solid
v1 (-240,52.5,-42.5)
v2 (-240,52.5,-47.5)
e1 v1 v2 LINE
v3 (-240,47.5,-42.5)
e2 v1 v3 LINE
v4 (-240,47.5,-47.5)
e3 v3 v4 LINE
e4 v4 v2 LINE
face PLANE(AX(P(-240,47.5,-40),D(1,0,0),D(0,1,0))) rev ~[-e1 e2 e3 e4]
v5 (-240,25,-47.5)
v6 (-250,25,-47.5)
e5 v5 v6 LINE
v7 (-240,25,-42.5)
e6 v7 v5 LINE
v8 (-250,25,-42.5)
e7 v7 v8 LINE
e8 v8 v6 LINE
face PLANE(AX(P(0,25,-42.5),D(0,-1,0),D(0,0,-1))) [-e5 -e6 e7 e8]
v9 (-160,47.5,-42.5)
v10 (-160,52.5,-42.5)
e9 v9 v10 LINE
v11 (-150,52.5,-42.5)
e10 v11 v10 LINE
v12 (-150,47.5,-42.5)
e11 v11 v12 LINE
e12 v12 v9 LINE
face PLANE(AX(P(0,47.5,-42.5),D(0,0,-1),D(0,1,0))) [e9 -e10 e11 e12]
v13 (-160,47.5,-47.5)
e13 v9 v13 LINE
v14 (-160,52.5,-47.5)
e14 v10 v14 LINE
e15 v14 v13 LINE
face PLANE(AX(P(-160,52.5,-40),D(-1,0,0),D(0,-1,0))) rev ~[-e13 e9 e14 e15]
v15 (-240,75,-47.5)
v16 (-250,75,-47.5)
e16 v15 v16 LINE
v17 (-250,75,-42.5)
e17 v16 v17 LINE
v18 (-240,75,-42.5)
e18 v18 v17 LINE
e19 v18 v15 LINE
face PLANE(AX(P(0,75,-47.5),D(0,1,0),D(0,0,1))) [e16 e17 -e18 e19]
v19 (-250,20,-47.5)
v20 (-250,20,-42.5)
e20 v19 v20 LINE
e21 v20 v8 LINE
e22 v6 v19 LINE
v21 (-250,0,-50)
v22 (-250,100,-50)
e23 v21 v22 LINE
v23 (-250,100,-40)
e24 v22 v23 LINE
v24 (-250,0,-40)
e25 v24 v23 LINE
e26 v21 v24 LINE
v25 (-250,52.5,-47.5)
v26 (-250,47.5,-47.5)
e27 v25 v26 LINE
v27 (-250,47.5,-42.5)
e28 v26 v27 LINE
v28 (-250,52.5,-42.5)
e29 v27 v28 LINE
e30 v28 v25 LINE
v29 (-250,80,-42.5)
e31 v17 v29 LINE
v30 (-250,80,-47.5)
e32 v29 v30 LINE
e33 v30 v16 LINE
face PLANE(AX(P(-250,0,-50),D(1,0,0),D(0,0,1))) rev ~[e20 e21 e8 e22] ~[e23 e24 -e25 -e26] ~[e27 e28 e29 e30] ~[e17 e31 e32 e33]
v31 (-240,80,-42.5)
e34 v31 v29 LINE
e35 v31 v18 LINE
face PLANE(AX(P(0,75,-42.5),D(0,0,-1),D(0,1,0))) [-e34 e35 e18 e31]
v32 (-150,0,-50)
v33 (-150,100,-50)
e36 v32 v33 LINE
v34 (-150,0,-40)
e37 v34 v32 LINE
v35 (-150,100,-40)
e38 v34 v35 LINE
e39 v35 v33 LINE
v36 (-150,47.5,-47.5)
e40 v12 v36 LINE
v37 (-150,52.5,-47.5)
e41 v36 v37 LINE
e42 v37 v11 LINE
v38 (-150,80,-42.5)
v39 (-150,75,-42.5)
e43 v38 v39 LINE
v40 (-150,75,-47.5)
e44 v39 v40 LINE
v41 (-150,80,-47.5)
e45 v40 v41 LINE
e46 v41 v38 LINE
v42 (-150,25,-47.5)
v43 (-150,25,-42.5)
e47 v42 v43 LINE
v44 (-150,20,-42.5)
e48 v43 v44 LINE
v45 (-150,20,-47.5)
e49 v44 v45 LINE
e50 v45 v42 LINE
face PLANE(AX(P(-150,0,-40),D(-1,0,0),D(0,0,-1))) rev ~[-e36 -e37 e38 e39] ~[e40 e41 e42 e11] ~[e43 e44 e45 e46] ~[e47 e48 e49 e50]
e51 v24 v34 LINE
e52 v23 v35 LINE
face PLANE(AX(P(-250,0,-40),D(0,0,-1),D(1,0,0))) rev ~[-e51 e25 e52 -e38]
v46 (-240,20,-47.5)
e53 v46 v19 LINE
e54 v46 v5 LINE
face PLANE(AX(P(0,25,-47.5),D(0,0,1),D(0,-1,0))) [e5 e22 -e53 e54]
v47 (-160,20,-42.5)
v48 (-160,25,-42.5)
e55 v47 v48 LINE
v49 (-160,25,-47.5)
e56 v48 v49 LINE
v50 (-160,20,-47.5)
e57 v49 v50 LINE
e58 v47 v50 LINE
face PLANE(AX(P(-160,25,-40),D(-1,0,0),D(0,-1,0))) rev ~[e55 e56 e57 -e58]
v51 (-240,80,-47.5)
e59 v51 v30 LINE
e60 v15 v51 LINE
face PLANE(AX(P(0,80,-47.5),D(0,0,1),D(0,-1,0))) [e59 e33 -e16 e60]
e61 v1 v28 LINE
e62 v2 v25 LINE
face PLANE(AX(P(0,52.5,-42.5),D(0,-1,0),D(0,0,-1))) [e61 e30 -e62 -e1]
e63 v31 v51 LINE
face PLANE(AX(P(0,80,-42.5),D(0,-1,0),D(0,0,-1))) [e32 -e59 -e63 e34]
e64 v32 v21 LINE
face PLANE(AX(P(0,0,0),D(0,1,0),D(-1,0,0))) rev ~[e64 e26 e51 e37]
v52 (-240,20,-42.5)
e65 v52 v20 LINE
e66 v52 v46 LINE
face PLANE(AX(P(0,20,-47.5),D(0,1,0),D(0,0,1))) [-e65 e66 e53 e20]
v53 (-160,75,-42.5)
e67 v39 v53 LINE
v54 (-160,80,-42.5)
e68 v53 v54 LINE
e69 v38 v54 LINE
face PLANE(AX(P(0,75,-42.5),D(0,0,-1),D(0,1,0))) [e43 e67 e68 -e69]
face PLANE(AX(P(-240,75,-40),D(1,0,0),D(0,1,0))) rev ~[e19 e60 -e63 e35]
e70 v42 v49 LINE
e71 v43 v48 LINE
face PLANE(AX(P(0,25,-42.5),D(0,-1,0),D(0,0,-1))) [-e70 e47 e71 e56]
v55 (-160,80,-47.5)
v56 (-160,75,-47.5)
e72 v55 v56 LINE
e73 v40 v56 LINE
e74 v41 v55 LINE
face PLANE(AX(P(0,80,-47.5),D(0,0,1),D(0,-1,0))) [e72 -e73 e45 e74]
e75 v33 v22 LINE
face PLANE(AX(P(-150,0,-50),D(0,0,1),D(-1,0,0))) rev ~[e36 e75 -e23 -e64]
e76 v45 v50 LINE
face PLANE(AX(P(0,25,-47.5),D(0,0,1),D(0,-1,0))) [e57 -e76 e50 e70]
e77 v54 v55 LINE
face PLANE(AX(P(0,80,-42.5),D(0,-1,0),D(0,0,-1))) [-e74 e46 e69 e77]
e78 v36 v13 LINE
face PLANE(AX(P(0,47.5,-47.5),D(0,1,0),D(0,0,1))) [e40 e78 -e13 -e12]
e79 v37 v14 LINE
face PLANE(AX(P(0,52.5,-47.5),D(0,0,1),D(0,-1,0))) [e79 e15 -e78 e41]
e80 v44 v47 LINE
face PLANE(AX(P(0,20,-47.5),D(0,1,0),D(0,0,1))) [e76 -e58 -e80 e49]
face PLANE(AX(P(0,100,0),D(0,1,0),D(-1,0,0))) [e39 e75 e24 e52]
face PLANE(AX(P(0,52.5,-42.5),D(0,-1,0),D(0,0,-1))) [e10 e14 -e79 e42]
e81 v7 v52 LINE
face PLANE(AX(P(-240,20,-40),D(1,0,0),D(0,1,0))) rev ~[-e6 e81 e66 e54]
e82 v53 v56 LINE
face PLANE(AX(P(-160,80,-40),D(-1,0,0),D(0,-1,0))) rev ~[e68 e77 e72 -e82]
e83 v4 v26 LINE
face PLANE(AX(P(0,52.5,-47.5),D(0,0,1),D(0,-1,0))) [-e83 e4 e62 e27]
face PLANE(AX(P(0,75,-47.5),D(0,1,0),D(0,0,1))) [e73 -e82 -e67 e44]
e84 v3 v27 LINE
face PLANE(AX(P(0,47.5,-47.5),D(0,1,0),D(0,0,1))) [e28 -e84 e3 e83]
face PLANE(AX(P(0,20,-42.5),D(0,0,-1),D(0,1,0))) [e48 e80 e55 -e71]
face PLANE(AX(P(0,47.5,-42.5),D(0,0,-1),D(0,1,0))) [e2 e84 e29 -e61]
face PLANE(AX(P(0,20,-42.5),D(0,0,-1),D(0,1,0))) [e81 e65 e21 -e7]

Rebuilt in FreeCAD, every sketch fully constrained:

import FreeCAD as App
import Part
import Sketcher
from FreeCAD import Vector

doc = App.newDocument("Part")
body = doc.addObject("PartDesign::Body", "Body")
body.AllowCompound = True

sketch1 = body.newObject("Sketcher::SketchObject", "Sketch")
sketch1.AttachmentSupport = (doc.getObject("XZ_Plane"), [""])
sketch1.MapMode = "FlatFace"
sketch1.addGeometry([
    Part.LineSegment(Vector(-300, -50, 0), Vector(-400, -50, 0)),
    Part.LineSegment(Vector(-400, -50, 0), Vector(-400, 50, 0)),
    Part.LineSegment(Vector(-400, 50, 0), Vector(-390, 50, 0)),
    Part.LineSegment(Vector(-390, 50, 0), Vector(-390, -40, 0)),
    Part.LineSegment(Vector(-390, -40, 0), Vector(-300, -40, 0)),
    Part.LineSegment(Vector(-300, -40, 0), Vector(-300, -50, 0)),
    Part.LineSegment(Vector(-150, -50, 0), Vector(-250, -50, 0)),
    Part.LineSegment(Vector(-250, -50, 0), Vector(-250, -40, 0)),
    Part.LineSegment(Vector(-250, -40, 0), Vector(-150, -40, 0)),
    Part.LineSegment(Vector(-150, -40, 0), Vector(-150, -50, 0)),
    Part.LineSegment(Vector(0, -50, 0), Vector(-100, -50, 0)),
    Part.LineSegment(Vector(-100, -50, 0), Vector(-100, -40, 0)),
    Part.LineSegment(Vector(-100, -40, 0), Vector(-10, -40, 0)),
    Part.LineSegment(Vector(-10, -40, 0), Vector(-10, 50, 0)),
    Part.LineSegment(Vector(-10, 50, 0), Vector(0, 50, 0)),
    Part.LineSegment(Vector(0, 50, 0), Vector(0, -50, 0)),
], False)
sketch1.addConstraint([
    Sketcher.Constraint("Coincident", 0, 2, 1, 1),
    Sketcher.Constraint("Coincident", 1, 2, 2, 1),
    Sketcher.Constraint("Coincident", 2, 2, 3, 1),
    Sketcher.Constraint("Coincident", 3, 2, 4, 1),
    Sketcher.Constraint("Coincident", 4, 2, 5, 1),
    Sketcher.Constraint("Coincident", 5, 2, 0, 1),
    Sketcher.Constraint("Coincident", 6, 2, 7, 1),
    Sketcher.Constraint("Coincident", 7, 2, 8, 1),
    Sketcher.Constraint("Coincident", 8, 2, 9, 1),
    Sketcher.Constraint("Coincident", 9, 2, 6, 1),
    Sketcher.Constraint("Coincident", 10, 2, 11, 1),
    Sketcher.Constraint("Coincident", 11, 2, 12, 1),
    Sketcher.Constraint("Coincident", 12, 2, 13, 1),
    Sketcher.Constraint("Coincident", 13, 2, 14, 1),
    Sketcher.Constraint("Coincident", 14, 2, 15, 1),
    Sketcher.Constraint("Coincident", 15, 2, 10, 1),
    Sketcher.Constraint("Horizontal", 0),
    Sketcher.Constraint("Vertical", 1),
    Sketcher.Constraint("Horizontal", 2),
    Sketcher.Constraint("Vertical", 3),
    Sketcher.Constraint("Horizontal", 4),
    Sketcher.Constraint("Vertical", 5),
    Sketcher.Constraint("Horizontal", 6),
    Sketcher.Constraint("Vertical", 7),
    Sketcher.Constraint("Horizontal", 8),
    Sketcher.Constraint("Vertical", 9),
    Sketcher.Constraint("Horizontal", 10),
    Sketcher.Constraint("Vertical", 11),
    Sketcher.Constraint("Horizontal", 12),
    Sketcher.Constraint("Vertical", 13),
    Sketcher.Constraint("Horizontal", 14),
    Sketcher.Constraint("Vertical", 15),
    Sketcher.Constraint("Symmetric", 14, 2, 15, 2, -1, 1),
    Sketcher.Constraint("Horizontal", 5, 2, 6, 2),
    Sketcher.Constraint("Horizontal", 4, 2, 7, 2),
    Sketcher.Constraint("Horizontal", 9, 2, 10, 2),
    Sketcher.Constraint("Horizontal", 8, 2, 11, 2),
    Sketcher.Constraint("Horizontal", 2, 2, 13, 2),
    Sketcher.Constraint("Equal", 0, 6),
    Sketcher.Constraint("Equal", 8, 10),
    Sketcher.Constraint("Equal", 4, 12),
    Sketcher.Constraint("Equal", 10, 1),
    Sketcher.Constraint("Equal", 12, 3),
    Sketcher.Constraint("DistanceX", 0, 2, 0, 1, 100.0),
    Sketcher.Constraint("DistanceX", 2, 1, 2, 2, 10.0),
    Sketcher.Constraint("DistanceX", 0, 2, -1, 1, 400.0),
    Sketcher.Constraint("DistanceX", 5, 2, 6, 2, 50.0),
])
pad1 = body.newObject("PartDesign::Pad", "Pad")
pad1.Profile = sketch1
pad1.Length = 100
pad1.Reversed = True

sketch2 = body.newObject("Sketcher::SketchObject", "Sketch001")
sketch2.AttachmentSupport = (doc.getObject("YZ_Plane"), [""])
sketch2.MapMode = "FlatFace"
sketch2.addGeometry([
    Part.LineSegment(Vector(80, -48, 0), Vector(80, -42, 0)),
    Part.LineSegment(Vector(80, -42, 0), Vector(75, -42, 0)),
    Part.LineSegment(Vector(75, -42, 0), Vector(75, -48, 0)),
    Part.LineSegment(Vector(75, -48, 0), Vector(80, -48, 0)),
    Part.LineSegment(Vector(20, -42, 0), Vector(20, -48, 0)),
    Part.LineSegment(Vector(20, -48, 0), Vector(25, -48, 0)),
    Part.LineSegment(Vector(25, -48, 0), Vector(25, -42, 0)),
    Part.LineSegment(Vector(25, -42, 0), Vector(20, -42, 0)),
    Part.LineSegment(Vector(52, -48, 0), Vector(52, -42, 0)),
    Part.LineSegment(Vector(52, -42, 0), Vector(48, -42, 0)),
    Part.LineSegment(Vector(48, -42, 0), Vector(48, -48, 0)),
    Part.LineSegment(Vector(48, -48, 0), Vector(52, -48, 0)),
], False)
sketch2.addConstraint([
    Sketcher.Constraint("Coincident", 0, 2, 1, 1),
    Sketcher.Constraint("Coincident", 1, 2, 2, 1),
    Sketcher.Constraint("Coincident", 2, 2, 3, 1),
    Sketcher.Constraint("Coincident", 3, 2, 0, 1),
    Sketcher.Constraint("Coincident", 4, 2, 5, 1),
    Sketcher.Constraint("Coincident", 5, 2, 6, 1),
    Sketcher.Constraint("Coincident", 6, 2, 7, 1),
    Sketcher.Constraint("Coincident", 7, 2, 4, 1),
    Sketcher.Constraint("Coincident", 8, 2, 9, 1),
    Sketcher.Constraint("Coincident", 9, 2, 10, 1),
    Sketcher.Constraint("Coincident", 10, 2, 11, 1),
    Sketcher.Constraint("Coincident", 11, 2, 8, 1),
    Sketcher.Constraint("Vertical", 0),
    Sketcher.Constraint("Horizontal", 1),
    Sketcher.Constraint("Vertical", 2),
    Sketcher.Constraint("Horizontal", 3),
    Sketcher.Constraint("Vertical", 4),
    Sketcher.Constraint("Horizontal", 5),
    Sketcher.Constraint("Vertical", 6),
    Sketcher.Constraint("Horizontal", 7),
    Sketcher.Constraint("Vertical", 8),
    Sketcher.Constraint("Horizontal", 9),
    Sketcher.Constraint("Vertical", 10),
    Sketcher.Constraint("Horizontal", 11),
    Sketcher.Constraint("Horizontal", 3, 2, 4, 2),
    Sketcher.Constraint("Horizontal", 1, 2, 6, 2),
    Sketcher.Constraint("Horizontal", 7, 2, 8, 2),
    Sketcher.Constraint("Horizontal", 5, 2, 10, 2),
    Sketcher.Constraint("Equal", 3, 5),
    Sketcher.Constraint("Equal", 7, 9),
    Sketcher.Constraint("Equal", 11, 0),
    Sketcher.Constraint("DistanceX", 1, 2, 1, 1, 5.0),
    Sketcher.Constraint("DistanceX", -1, 1, 4, 2, 20.0),
    Sketcher.Constraint("DistanceX", 8, 2, 1, 2, 22.5),
    Sketcher.Constraint("DistanceX", 6, 2, 9, 2, 22.5),
    Sketcher.Constraint("DistanceY", 0, 2, -1, 1, 42.5),
])
pocket1 = body.newObject("PartDesign::Pocket", "Pocket")
pocket1.Profile = sketch2
pocket1.Length = 320

sketch3 = body.newObject("Sketcher::SketchObject", "Sketch002")
sketch3.AttachmentSupport = (doc.getObject("YZ_Plane"), [""])
sketch3.MapMode = "FlatFace"
sketch3.addGeometry([
    Part.LineSegment(Vector(75, -42, 0), Vector(75, -48, 0)),
    Part.LineSegment(Vector(75, -48, 0), Vector(80, -48, 0)),
    Part.LineSegment(Vector(80, -48, 0), Vector(80, -42, 0)),
    Part.LineSegment(Vector(80, -42, 0), Vector(75, -42, 0)),
    Part.LineSegment(Vector(48, -42, 0), Vector(48, -48, 0)),
    Part.LineSegment(Vector(48, -48, 0), Vector(52, -48, 0)),
    Part.LineSegment(Vector(52, -48, 0), Vector(52, -42, 0)),
    Part.LineSegment(Vector(52, -42, 0), Vector(48, -42, 0)),
    Part.LineSegment(Vector(25, -48, 0), Vector(25, -42, 0)),
    Part.LineSegment(Vector(25, -42, 0), Vector(20, -42, 0)),
    Part.LineSegment(Vector(20, -42, 0), Vector(20, -48, 0)),
    Part.LineSegment(Vector(20, -48, 0), Vector(25, -48, 0)),
], False)
sketch3.addConstraint([
    Sketcher.Constraint("Coincident", 0, 2, 1, 1),
    Sketcher.Constraint("Coincident", 1, 2, 2, 1),
    Sketcher.Constraint("Coincident", 2, 2, 3, 1),
    Sketcher.Constraint("Coincident", 3, 2, 0, 1),
    Sketcher.Constraint("Coincident", 4, 2, 5, 1),
    Sketcher.Constraint("Coincident", 5, 2, 6, 1),
    Sketcher.Constraint("Coincident", 6, 2, 7, 1),
    Sketcher.Constraint("Coincident", 7, 2, 4, 1),
    Sketcher.Constraint("Coincident", 8, 2, 9, 1),
    Sketcher.Constraint("Coincident", 9, 2, 10, 1),
    Sketcher.Constraint("Coincident", 10, 2, 11, 1),
    Sketcher.Constraint("Coincident", 11, 2, 8, 1),
    Sketcher.Constraint("Vertical", 0),
    Sketcher.Constraint("Horizontal", 1),
    Sketcher.Constraint("Vertical", 2),
    Sketcher.Constraint("Horizontal", 3),
    Sketcher.Constraint("Vertical", 4),
    Sketcher.Constraint("Horizontal", 5),
    Sketcher.Constraint("Vertical", 6),
    Sketcher.Constraint("Horizontal", 7),
    Sketcher.Constraint("Vertical", 8),
    Sketcher.Constraint("Horizontal", 9),
    Sketcher.Constraint("Vertical", 10),
    Sketcher.Constraint("Horizontal", 11),
    Sketcher.Constraint("Horizontal", 1, 2, 4, 2),
    Sketcher.Constraint("Horizontal", 3, 2, 6, 2),
    Sketcher.Constraint("Horizontal", 7, 2, 8, 2),
    Sketcher.Constraint("Horizontal", 5, 2, 10, 2),
    Sketcher.Constraint("Equal", 3, 5),
    Sketcher.Constraint("Equal", 7, 9),
    Sketcher.Constraint("Equal", 11, 0),
    Sketcher.Constraint("DistanceX", 1, 1, 1, 2, 5.0),
    Sketcher.Constraint("DistanceX", -1, 1, 0, 2, 75.0),
    Sketcher.Constraint("DistanceX", -1, 1, 8, 2, 25.0),
    Sketcher.Constraint("DistanceY", 0, 2, -1, 1, 47.5),
    Sketcher.Constraint("DistanceX", -1, 1, 4, 2, 47.5),
])
pad2 = body.newObject("PartDesign::Pad", "Pad001")
pad2.Profile = sketch3
pad2.Length = 80
pad2.Reversed = True

sketch4 = body.newObject("Sketcher::SketchObject", "Sketch003")
sketch4.AttachmentSupport = (doc.getObject("XY_Plane"), [""])
sketch4.MapMode = "FlatFace"
sketch4.AttachmentOffset = App.Placement(Vector(0, 0, -40), App.Rotation())
sketch4.addGeometry([
    Part.LineSegment(Vector(-310, 80, 0), Vector(-320, 80, 0)),
    Part.LineSegment(Vector(-320, 80, 0), Vector(-320, 20, 0)),
    Part.LineSegment(Vector(-320, 20, 0), Vector(-310, 20, 0)),
    Part.LineSegment(Vector(-310, 20, 0), Vector(-310, 80, 0)),
    Part.LineSegment(Vector(-240, 80, 0), Vector(-240, 75, 0)),
    Part.LineSegment(Vector(-240, 75, 0), Vector(-160, 75, 0)),
    Part.LineSegment(Vector(-160, 75, 0), Vector(-160, 80, 0)),
    Part.LineSegment(Vector(-160, 80, 0), Vector(-240, 80, 0)),
    Part.LineSegment(Vector(-160, 52, 0), Vector(-240, 52, 0)),
    Part.LineSegment(Vector(-240, 52, 0), Vector(-240, 48, 0)),
    Part.LineSegment(Vector(-240, 48, 0), Vector(-160, 48, 0)),
    Part.LineSegment(Vector(-160, 48, 0), Vector(-160, 52, 0)),
    Part.LineSegment(Vector(-160, 25, 0), Vector(-240, 25, 0)),
    Part.LineSegment(Vector(-240, 25, 0), Vector(-240, 20, 0)),
    Part.LineSegment(Vector(-240, 20, 0), Vector(-160, 20, 0)),
    Part.LineSegment(Vector(-160, 20, 0), Vector(-160, 25, 0)),
    Part.LineSegment(Vector(-90, 80, 0), Vector(-90, 20, 0)),
    Part.LineSegment(Vector(-90, 20, 0), Vector(-80, 20, 0)),
    Part.LineSegment(Vector(-80, 20, 0), Vector(-80, 80, 0)),
    Part.LineSegment(Vector(-80, 80, 0), Vector(-90, 80, 0)),
], False)
sketch4.addConstraint([
    Sketcher.Constraint("Coincident", 0, 2, 1, 1),
    Sketcher.Constraint("Coincident", 1, 2, 2, 1),
    Sketcher.Constraint("Coincident", 2, 2, 3, 1),
    Sketcher.Constraint("Coincident", 3, 2, 0, 1),
    Sketcher.Constraint("Coincident", 4, 2, 5, 1),
    Sketcher.Constraint("Coincident", 5, 2, 6, 1),
    Sketcher.Constraint("Coincident", 6, 2, 7, 1),
    Sketcher.Constraint("Coincident", 7, 2, 4, 1),
    Sketcher.Constraint("Coincident", 8, 2, 9, 1),
    Sketcher.Constraint("Coincident", 9, 2, 10, 1),
    Sketcher.Constraint("Coincident", 10, 2, 11, 1),
    Sketcher.Constraint("Coincident", 11, 2, 8, 1),
    Sketcher.Constraint("Coincident", 12, 2, 13, 1),
    Sketcher.Constraint("Coincident", 13, 2, 14, 1),
    Sketcher.Constraint("Coincident", 14, 2, 15, 1),
    Sketcher.Constraint("Coincident", 15, 2, 12, 1),
    Sketcher.Constraint("Coincident", 16, 2, 17, 1),
    Sketcher.Constraint("Coincident", 17, 2, 18, 1),
    Sketcher.Constraint("Coincident", 18, 2, 19, 1),
    Sketcher.Constraint("Coincident", 19, 2, 16, 1),
    Sketcher.Constraint("Horizontal", 0),
    Sketcher.Constraint("Vertical", 1),
    Sketcher.Constraint("Horizontal", 2),
    Sketcher.Constraint("Vertical", 3),
    Sketcher.Constraint("Vertical", 4),
    Sketcher.Constraint("Horizontal", 5),
    Sketcher.Constraint("Vertical", 6),
    Sketcher.Constraint("Horizontal", 7),
    Sketcher.Constraint("Horizontal", 8),
    Sketcher.Constraint("Vertical", 9),
    Sketcher.Constraint("Horizontal", 10),
    Sketcher.Constraint("Vertical", 11),
    Sketcher.Constraint("Horizontal", 12),
    Sketcher.Constraint("Vertical", 13),
    Sketcher.Constraint("Horizontal", 14),
    Sketcher.Constraint("Vertical", 15),
    Sketcher.Constraint("Vertical", 16),
    Sketcher.Constraint("Horizontal", 17),
    Sketcher.Constraint("Vertical", 18),
    Sketcher.Constraint("Horizontal", 19),
    Sketcher.Constraint("Horizontal", 3, 2, 6, 2),
    Sketcher.Constraint("Horizontal", 2, 2, 13, 2),
    Sketcher.Constraint("Horizontal", 14, 2, 16, 2),
    Sketcher.Constraint("Horizontal", 7, 2, 18, 2),
    Sketcher.Constraint("Vertical", 7, 2, 8, 2),
    Sketcher.Constraint("Vertical", 6, 2, 10, 2),
    Sketcher.Constraint("Vertical", 9, 2, 12, 2),
    Sketcher.Constraint("Vertical", 11, 2, 14, 2),
    Sketcher.Constraint("Equal", 2, 17),
    Sketcher.Constraint("Equal", 6, 9),
    Sketcher.Constraint("Equal", 11, 13),
    Sketcher.Constraint("DistanceX", 0, 2, 0, 1, 10.0),
    Sketcher.Constraint("DistanceX", 5, 1, 5, 2, 80.0),
    Sketcher.Constraint("DistanceY", 1, 2, 1, 1, 60.0),
    Sketcher.Constraint("DistanceY", 4, 2, 4, 1, 5.0),
    Sketcher.Constraint("DistanceX", 0, 2, -1, 1, 320.0),
    Sketcher.Constraint("DistanceY", -1, 1, 0, 2, 80.0),
    Sketcher.Constraint("DistanceX", 4, 2, -1, 1, 240.0),
    Sketcher.Constraint("DistanceX", 16, 2, -1, 1, 90.0),
    Sketcher.Constraint("DistanceY", -1, 1, 8, 2, 52.5),
])
pad3 = body.newObject("PartDesign::Pad", "Pad002")
pad3.Profile = sketch4
pad3.Length = 10
pad3.Reversed = True

sketch5 = body.newObject("Sketcher::SketchObject", "Sketch004")
sketch5.AttachmentSupport = (doc.getObject("XZ_Plane"), [""])
sketch5.MapMode = "FlatFace"
sketch5.AttachmentOffset = App.Placement(Vector(0, 0, -100), App.Rotation())
sketch5.addGeometry([
    Part.LineSegment(Vector(-300, 50, 0), Vector(-300, -50, 0)),
    Part.LineSegment(Vector(-300, -50, 0), Vector(-400, -50, 0)),
    Part.LineSegment(Vector(-400, -50, 0), Vector(-400, 50, 0)),
    Part.LineSegment(Vector(-400, 50, 0), Vector(-300, 50, 0)),
    Part.LineSegment(Vector(0, 50, 0), Vector(0, -50, 0)),
    Part.LineSegment(Vector(0, -50, 0), Vector(-100, -50, 0)),
    Part.LineSegment(Vector(-100, -50, 0), Vector(-100, 50, 0)),
    Part.LineSegment(Vector(-100, 50, 0), Vector(0, 50, 0)),
], False)
sketch5.addConstraint([
    Sketcher.Constraint("Coincident", 0, 2, 1, 1),
    Sketcher.Constraint("Coincident", 1, 2, 2, 1),
    Sketcher.Constraint("Coincident", 2, 2, 3, 1),
    Sketcher.Constraint("Coincident", 3, 2, 0, 1),
    Sketcher.Constraint("Coincident", 4, 2, 5, 1),
    Sketcher.Constraint("Coincident", 5, 2, 6, 1),
    Sketcher.Constraint("Coincident", 6, 2, 7, 1),
    Sketcher.Constraint("Coincident", 7, 2, 4, 1),
    Sketcher.Constraint("Vertical", 0),
    Sketcher.Constraint("Horizontal", 1),
    Sketcher.Constraint("Vertical", 2),
    Sketcher.Constraint("Horizontal", 3),
    Sketcher.Constraint("Vertical", 4),
    Sketcher.Constraint("Horizontal", 5),
    Sketcher.Constraint("Vertical", 6),
    Sketcher.Constraint("Horizontal", 7),
    Sketcher.Constraint("Symmetric", 4, 2, 7, 2, -1, 1),
    Sketcher.Constraint("Horizontal", 1, 2, 4, 2),
    Sketcher.Constraint("Horizontal", 3, 2, 6, 2),
    Sketcher.Constraint("Equal", 3, 5),
    Sketcher.Constraint("Equal", 7, 0),
    Sketcher.Constraint("DistanceX", 1, 2, 1, 1, 100.0),
    Sketcher.Constraint("DistanceX", 0, 2, -1, 1, 300.0),
])
pocket2 = body.newObject("PartDesign::Pocket", "Pocket001")
pocket2.Profile = sketch5
pocket2.Type = "ThroughAll"
pocket2.Reversed = True

doc.recompute()
